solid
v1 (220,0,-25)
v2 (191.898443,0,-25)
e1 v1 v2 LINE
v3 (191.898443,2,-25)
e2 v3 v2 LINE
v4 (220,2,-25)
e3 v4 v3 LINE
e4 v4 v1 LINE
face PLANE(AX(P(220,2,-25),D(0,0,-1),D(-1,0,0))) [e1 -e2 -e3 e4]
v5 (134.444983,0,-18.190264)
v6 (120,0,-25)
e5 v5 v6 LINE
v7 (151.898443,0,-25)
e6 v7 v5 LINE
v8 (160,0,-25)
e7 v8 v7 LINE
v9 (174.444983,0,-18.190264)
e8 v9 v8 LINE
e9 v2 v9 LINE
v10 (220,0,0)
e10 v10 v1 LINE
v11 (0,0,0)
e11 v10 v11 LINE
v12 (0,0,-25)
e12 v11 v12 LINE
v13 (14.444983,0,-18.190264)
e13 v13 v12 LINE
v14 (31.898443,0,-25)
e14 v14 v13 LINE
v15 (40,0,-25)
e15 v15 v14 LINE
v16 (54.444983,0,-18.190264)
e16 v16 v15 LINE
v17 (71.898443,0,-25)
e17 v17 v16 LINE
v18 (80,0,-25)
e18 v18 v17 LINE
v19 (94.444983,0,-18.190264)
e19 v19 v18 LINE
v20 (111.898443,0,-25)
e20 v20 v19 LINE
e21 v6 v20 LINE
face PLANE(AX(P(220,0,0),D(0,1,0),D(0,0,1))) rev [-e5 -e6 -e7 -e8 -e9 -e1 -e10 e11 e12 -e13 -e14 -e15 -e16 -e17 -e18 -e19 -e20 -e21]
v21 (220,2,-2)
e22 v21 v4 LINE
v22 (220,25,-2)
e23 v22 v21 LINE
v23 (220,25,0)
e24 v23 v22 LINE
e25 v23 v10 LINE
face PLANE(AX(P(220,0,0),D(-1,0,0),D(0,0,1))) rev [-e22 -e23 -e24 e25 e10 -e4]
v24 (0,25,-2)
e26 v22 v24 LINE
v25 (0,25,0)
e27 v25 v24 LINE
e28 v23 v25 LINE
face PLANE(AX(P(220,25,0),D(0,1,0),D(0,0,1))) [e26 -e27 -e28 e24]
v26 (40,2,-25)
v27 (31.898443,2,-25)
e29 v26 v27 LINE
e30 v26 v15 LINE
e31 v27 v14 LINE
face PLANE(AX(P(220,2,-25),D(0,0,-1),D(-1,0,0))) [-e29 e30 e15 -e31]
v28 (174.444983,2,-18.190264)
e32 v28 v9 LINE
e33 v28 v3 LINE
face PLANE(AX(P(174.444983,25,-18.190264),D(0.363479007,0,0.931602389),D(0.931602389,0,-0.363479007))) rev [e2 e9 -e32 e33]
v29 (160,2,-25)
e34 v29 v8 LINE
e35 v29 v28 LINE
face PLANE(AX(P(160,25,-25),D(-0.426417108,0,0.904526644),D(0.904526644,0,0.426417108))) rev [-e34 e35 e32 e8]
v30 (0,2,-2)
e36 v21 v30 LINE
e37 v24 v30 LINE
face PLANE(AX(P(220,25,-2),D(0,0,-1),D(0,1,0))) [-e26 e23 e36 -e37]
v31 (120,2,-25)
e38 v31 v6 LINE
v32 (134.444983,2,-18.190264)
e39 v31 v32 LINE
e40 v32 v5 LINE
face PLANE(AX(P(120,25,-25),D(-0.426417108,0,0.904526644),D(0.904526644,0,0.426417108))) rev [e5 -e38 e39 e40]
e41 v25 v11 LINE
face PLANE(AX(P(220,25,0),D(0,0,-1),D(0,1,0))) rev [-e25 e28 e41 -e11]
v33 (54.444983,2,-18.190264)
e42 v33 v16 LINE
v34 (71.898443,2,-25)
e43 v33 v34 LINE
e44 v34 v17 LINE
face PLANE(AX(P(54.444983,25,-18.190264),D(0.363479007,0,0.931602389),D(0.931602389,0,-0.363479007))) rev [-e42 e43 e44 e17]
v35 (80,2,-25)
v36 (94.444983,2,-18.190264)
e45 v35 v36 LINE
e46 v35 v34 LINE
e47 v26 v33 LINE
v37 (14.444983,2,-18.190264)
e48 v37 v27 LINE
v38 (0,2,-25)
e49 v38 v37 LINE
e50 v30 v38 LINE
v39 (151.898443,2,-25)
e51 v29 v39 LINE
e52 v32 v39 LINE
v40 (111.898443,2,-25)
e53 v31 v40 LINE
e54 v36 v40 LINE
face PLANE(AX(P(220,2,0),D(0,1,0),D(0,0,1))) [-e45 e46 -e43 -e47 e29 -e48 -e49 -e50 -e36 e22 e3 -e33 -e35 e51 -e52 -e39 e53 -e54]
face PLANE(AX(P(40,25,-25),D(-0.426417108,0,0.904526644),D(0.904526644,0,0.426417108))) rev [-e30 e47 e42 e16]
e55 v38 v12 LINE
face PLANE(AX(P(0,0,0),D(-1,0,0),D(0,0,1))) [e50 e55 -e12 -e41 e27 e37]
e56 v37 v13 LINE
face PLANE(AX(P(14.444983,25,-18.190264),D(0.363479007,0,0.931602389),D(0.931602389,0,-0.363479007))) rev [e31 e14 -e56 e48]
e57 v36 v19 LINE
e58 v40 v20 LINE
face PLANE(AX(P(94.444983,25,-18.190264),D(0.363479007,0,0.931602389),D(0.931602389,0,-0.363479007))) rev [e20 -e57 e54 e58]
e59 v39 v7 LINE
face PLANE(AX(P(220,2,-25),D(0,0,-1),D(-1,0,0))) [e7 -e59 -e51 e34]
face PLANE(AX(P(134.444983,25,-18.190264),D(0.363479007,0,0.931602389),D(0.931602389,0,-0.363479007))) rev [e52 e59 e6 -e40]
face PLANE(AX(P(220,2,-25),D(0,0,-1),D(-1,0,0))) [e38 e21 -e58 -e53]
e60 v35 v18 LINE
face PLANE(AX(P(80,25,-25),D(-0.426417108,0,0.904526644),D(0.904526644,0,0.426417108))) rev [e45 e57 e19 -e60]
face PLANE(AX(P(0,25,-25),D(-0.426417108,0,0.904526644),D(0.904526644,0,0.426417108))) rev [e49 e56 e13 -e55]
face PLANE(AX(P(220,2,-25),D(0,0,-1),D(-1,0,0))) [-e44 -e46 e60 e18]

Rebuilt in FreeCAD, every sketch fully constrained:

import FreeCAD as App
import Part
import Sketcher
Q = App.Units.Quantity


def add_polygon(sketch, points):
    """Adds a closed chain of lines whose ends are joined by coincident constraints."""
    first, n = sketch.GeometryCount, len(points)
    for a, b in zip(points, points[1:] + points[:1]):
        sketch.addGeometry(Part.LineSegment(App.Vector(*a, 0), App.Vector(*b, 0)), False)
    for i in range(n):
        sketch.addConstraint(Sketcher.Constraint("Coincident", first + i, 2, first + (i + 1) % n, 1))

doc = App.newDocument("Part")
params = doc.addObject("Spreadsheet::Sheet", "Params")
for row, (alias, value) in enumerate([
    ("sketch1_width", "25 mm"),
    ("sketch1_width2", "2 mm"),
    ("pad1_length", "220 mm"),
], start=1):
    params.set(f"A{row}", alias)
    params.set(f"B{row}", "=" + value)
    params.setAlias(f"B{row}", alias)

body = doc.addObject("PartDesign::Body", "Body")

# Sketch on YZ plane
sketch1 = doc.addObject("Sketcher::SketchObject", "Sketch")
body.addObject(sketch1)
sketch1.AttachmentSupport = (doc.YZ_Plane, [""])
sketch1.MapMode = "FlatFace"
add_polygon(sketch1, [(25, 0), (0, 0), (0, -25), (2, -25), (2, -2), (25, -2)])  # lines 0-5
sketch1.addConstraint([
    Sketcher.Constraint("Horizontal", 0),
    Sketcher.Constraint("Vertical", 1),
    Sketcher.Constraint("Horizontal", 2),
    Sketcher.Constraint("Vertical", 3),
    Sketcher.Constraint("Horizontal", 4),
    Sketcher.Constraint("Vertical", 5),
    Sketcher.Constraint("Coincident", 0, 2, -1, 1),
    Sketcher.Constraint("Equal", 0, 1),
    Sketcher.Constraint("Equal", 4, 3),
    Sketcher.Constraint("DistanceX", 0, 2, 0, 1, Q("25 mm")),
    Sketcher.Constraint("DistanceX", 2, 1, 2, 2, Q("2 mm")),
])
sketch1.setExpression("Constraints[15]", "Params.sketch1_width")
sketch1.setExpression("Constraints[16]", "Params.sketch1_width2")
pad1 = doc.addObject("PartDesign::Pad", "Pad")
body.addObject(pad1)
pad1.Profile = sketch1
pad1.setExpression("Length", "Params.pad1_length")

# Sketch on XZ plane
sketch2 = doc.addObject("Sketcher::SketchObject", "Sketch001")
body.addObject(sketch2)
sketch2.AttachmentSupport = (doc.XZ_Plane, [""])
sketch2.MapMode = "FlatFace"
add_polygon(sketch2, [(14, -18), (0, -25), (32, -25)])  # lines 0-2
add_polygon(sketch2, [(54, -18), (40, -25), (72, -25)])  # lines 3-5
add_polygon(sketch2, [(94, -18), (80, -25), (112, -25)])  # lines 6-8
add_polygon(sketch2, [(134, -18), (120, -25), (152, -25)])  # lines 9-11
add_polygon(sketch2, [(174, -18), (160, -25), (192, -25)])  # lines 12-14
sketch2.addConstraint([
    Sketcher.Constraint("Horizontal", 1),
    Sketcher.Constraint("Horizontal", 4),
    Sketcher.Constraint("Horizontal", 7),
    Sketcher.Constraint("Horizontal", 10),
    Sketcher.Constraint("Horizontal", 13),
    Sketcher.Constraint("PointOnObject", 0, 2, -2),
    Sketcher.Constraint("Parallel", 0, 3),
    Sketcher.Constraint("Parallel", 2, 5),
    Sketcher.Constraint("Parallel", 3, 6),
    Sketcher.Constraint("Parallel", 5, 8),
    Sketcher.Constraint("Parallel", 6, 9),
    Sketcher.Constraint("Parallel", 8, 11),
    Sketcher.Constraint("Parallel", 9, 12),
    Sketcher.Constraint("Parallel", 11, 14),
    Sketcher.Constraint("Horizontal", 1, 2, 3, 2),
    Sketcher.Constraint("Horizontal", 2, 2, 5, 2),
    Sketcher.Constraint("Horizontal", 4, 2, 6, 2),
    Sketcher.Constraint("Horizontal", 5, 2, 8, 2),
    Sketcher.Constraint("Horizontal", 7, 2, 9, 2),
    Sketcher.Constraint("Horizontal", 8, 2, 11, 2),
    Sketcher.Constraint("Horizontal", 10, 2, 12, 2),
    Sketcher.Constraint("Horizontal", 11, 2, 14, 2),
    Sketcher.Constraint("DistanceY", 0, 2, -1, 1, Q("25 mm")),
    Sketcher.Constraint("DistanceX", -1, 1, 3, 2, Q("40 mm")),
    Sketcher.Constraint("DistanceX", -1, 1, 6, 2, Q("80 mm")),
    Sketcher.Constraint("DistanceX", -1, 1, 9, 2, Q("120 mm")),
    Sketcher.Constraint("DistanceX", -1, 1, 12, 2, Q("160 mm")),
    Sketcher.Constraint("Distance", 0, Q("15.96966 mm")),
    Sketcher.Constraint("Distance", 2, Q("18.734882 mm")),
    Sketcher.Constraint("DistanceX", 1, 1, 1, 2, Q("31.898443 mm")),
])
pocket1 = doc.addObject("PartDesign::Pocket", "Pocket")
body.addObject(pocket1)
pocket1.Profile = sketch2
pocket1.Type = "ThroughAll"

doc.recompute()
